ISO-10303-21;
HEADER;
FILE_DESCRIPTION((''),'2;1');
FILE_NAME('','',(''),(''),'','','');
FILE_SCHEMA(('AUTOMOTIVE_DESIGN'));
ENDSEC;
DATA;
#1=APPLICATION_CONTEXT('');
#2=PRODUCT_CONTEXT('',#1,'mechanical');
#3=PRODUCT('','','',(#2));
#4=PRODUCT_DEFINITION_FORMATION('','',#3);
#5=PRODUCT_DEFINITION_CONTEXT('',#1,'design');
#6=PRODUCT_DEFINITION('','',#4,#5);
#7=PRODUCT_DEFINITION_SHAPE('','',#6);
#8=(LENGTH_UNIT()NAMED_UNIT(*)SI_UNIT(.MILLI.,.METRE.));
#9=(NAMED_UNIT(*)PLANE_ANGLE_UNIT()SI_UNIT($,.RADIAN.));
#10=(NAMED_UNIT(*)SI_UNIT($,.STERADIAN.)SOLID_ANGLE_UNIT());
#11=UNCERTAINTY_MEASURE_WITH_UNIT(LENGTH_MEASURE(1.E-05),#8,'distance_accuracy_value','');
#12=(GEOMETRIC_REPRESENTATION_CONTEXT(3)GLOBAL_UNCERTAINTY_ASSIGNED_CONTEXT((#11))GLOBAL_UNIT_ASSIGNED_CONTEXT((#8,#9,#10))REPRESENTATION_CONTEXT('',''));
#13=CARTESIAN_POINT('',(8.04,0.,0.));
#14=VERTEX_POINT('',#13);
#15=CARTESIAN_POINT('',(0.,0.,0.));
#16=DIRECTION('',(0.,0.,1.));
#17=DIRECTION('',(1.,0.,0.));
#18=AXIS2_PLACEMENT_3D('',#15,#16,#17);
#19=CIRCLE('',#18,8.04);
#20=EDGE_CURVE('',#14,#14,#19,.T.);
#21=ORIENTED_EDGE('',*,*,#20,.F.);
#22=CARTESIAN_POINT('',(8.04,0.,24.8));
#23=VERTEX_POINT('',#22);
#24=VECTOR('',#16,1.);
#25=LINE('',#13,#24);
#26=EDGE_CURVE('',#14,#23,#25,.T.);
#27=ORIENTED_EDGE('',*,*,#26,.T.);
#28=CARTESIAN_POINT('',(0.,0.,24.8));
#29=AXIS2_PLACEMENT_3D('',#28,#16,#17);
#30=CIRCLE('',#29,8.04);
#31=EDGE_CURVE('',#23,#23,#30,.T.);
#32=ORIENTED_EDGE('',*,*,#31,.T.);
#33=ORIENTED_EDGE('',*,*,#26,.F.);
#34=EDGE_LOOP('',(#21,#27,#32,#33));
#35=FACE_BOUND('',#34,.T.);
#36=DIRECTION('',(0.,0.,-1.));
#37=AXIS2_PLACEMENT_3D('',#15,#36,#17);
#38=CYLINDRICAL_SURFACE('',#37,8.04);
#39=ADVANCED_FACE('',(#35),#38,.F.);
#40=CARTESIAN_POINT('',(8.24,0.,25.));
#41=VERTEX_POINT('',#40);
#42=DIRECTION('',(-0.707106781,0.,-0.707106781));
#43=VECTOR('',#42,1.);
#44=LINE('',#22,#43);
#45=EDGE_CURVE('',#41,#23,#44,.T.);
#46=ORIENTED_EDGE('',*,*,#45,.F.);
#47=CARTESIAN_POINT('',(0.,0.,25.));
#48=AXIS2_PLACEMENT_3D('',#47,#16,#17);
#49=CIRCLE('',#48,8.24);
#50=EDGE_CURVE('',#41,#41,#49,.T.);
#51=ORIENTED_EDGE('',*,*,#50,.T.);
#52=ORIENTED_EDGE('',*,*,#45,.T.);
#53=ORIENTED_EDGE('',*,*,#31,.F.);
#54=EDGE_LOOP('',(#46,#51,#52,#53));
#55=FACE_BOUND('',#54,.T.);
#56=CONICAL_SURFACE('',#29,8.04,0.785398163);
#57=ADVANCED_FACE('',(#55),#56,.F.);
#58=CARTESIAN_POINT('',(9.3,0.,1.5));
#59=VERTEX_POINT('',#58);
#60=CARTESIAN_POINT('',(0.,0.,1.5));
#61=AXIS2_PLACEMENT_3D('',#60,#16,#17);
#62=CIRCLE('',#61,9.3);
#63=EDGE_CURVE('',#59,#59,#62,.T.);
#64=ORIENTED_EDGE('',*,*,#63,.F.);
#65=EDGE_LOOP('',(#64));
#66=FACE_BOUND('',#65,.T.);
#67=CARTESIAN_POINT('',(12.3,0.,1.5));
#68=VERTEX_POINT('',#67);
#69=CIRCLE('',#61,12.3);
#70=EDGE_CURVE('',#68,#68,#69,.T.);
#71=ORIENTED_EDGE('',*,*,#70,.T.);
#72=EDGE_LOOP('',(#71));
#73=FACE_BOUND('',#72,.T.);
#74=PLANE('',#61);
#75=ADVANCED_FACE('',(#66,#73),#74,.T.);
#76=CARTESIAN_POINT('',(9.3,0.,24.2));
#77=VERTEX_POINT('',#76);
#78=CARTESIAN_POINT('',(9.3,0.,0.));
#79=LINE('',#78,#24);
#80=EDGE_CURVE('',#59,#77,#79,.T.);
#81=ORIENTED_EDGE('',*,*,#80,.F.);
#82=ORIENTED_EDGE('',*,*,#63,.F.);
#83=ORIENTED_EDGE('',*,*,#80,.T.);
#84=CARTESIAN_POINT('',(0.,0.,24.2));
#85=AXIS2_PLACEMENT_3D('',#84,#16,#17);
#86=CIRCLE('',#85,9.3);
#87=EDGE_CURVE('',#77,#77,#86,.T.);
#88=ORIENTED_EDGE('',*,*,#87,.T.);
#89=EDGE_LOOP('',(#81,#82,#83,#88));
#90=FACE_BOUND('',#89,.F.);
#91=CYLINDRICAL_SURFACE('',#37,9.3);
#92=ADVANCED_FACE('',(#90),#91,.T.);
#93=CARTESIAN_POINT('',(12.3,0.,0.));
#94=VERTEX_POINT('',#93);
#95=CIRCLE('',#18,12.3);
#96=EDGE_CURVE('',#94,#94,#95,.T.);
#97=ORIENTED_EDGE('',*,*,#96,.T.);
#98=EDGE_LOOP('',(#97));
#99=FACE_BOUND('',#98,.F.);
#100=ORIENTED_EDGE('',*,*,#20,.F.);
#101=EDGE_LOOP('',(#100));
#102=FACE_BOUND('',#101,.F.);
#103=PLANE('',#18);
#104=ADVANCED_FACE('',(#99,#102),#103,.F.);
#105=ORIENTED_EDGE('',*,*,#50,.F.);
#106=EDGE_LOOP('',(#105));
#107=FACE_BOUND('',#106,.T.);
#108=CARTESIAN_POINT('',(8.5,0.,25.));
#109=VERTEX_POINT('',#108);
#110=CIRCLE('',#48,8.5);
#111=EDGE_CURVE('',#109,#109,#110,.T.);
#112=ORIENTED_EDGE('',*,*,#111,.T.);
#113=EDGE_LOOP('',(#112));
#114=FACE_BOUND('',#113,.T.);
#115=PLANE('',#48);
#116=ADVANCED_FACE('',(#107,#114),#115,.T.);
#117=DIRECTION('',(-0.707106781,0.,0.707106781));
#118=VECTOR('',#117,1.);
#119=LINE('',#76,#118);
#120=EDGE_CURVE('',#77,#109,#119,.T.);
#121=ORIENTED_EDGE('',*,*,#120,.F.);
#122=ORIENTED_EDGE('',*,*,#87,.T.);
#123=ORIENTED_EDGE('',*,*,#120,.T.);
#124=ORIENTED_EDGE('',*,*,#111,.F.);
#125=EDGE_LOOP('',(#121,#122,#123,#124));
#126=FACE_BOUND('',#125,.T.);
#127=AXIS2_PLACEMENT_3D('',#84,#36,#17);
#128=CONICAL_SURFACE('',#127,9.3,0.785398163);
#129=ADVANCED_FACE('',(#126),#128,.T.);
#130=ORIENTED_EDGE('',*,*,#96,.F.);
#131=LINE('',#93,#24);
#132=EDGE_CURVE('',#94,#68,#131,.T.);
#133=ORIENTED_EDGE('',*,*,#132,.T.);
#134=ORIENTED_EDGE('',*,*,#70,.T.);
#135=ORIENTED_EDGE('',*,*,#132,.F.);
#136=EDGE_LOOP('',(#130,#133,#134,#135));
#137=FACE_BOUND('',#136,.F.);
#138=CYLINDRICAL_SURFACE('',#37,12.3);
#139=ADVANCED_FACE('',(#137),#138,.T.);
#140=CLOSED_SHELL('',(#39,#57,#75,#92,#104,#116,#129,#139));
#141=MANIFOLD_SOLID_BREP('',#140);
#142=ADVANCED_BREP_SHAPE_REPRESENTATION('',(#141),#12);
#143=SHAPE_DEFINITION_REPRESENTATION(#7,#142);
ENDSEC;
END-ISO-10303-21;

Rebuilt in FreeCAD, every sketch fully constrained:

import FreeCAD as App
import Part
import Sketcher
from FreeCAD import Vector
Q = App.Units.Quantity


def edges_at(feature, points):
    """Names of the edges that pass closest to the given points."""
    edges = feature.Shape.Edges
    near = lambda p: min(range(len(edges)), key=lambda i: edges[i].distToShape(Part.Vertex(*p))[0])
    return sorted({f"Edge{near(p) + 1}" for p in points})

doc = App.newDocument("Part")
body = doc.addObject("PartDesign::Body", "Body")

# Sketch on XY plane
sketch1 = body.newObject("Sketcher::SketchObject", "Sketch")
sketch1.AttachmentSupport = (doc.getObject("XY_Plane"), [""])
sketch1.MapMode = "FlatFace"
sketch1.addGeometry(Part.Circle(Vector(0, 0, 0), Vector(0, 0, 1), 12.3), False)
sketch1.addGeometry(Part.Circle(Vector(0, 0, 0), Vector(0, 0, 1), 9.3), False)
sketch1.addConstraint(Sketcher.Constraint("Coincident", 0, 3, -1, 1))
sketch1.addConstraint(Sketcher.Constraint("Coincident", 1, 3, -1, 1))
sketch1.addConstraint(Sketcher.Constraint("Diameter", 0, Q("24.6 mm")))
sketch1.addConstraint(Sketcher.Constraint("Diameter", 1, Q("18.6 mm")))
pad1 = body.newObject("PartDesign::Pad", "Pad")
pad1.Profile = sketch1
pad1.Length = 1.5

# Sketch on XY plane
sketch2 = body.newObject("Sketcher::SketchObject", "Sketch001")
sketch2.AttachmentSupport = (doc.getObject("XY_Plane"), [""])
sketch2.MapMode = "FlatFace"
sketch2.addGeometry(Part.Circle(Vector(0, 0, 0), Vector(0, 0, 1), 9.3), False)
sketch2.addGeometry(Part.Circle(Vector(0, 0, 0), Vector(0, 0, 1), 8.04), False)
sketch2.addConstraint(Sketcher.Constraint("Coincident", 0, 3, -1, 1))
sketch2.addConstraint(Sketcher.Constraint("Coincident", 1, 3, -1, 1))
sketch2.addConstraint(Sketcher.Constraint("Diameter", 0, Q("18.6 mm")))
sketch2.addConstraint(Sketcher.Constraint("Diameter", 1, Q("16.08 mm")))
pad2 = body.newObject("PartDesign::Pad", "Pad001")
pad2.Profile = sketch2
pad2.Length = 25
doc.recompute()

chamfer = body.newObject("PartDesign::Chamfer", "Chamfer")
chamfer.Base = (pad2, edges_at(pad2, [(-9.3, 0, 25)]))
chamfer.Size = 0.8
doc.recompute()

chamfer2 = body.newObject("PartDesign::Chamfer", "Chamfer001")
chamfer2.Base = (chamfer, edges_at(chamfer, [(-8.04, 0, 25)]))
chamfer2.Size = 0.2

doc.recompute()
